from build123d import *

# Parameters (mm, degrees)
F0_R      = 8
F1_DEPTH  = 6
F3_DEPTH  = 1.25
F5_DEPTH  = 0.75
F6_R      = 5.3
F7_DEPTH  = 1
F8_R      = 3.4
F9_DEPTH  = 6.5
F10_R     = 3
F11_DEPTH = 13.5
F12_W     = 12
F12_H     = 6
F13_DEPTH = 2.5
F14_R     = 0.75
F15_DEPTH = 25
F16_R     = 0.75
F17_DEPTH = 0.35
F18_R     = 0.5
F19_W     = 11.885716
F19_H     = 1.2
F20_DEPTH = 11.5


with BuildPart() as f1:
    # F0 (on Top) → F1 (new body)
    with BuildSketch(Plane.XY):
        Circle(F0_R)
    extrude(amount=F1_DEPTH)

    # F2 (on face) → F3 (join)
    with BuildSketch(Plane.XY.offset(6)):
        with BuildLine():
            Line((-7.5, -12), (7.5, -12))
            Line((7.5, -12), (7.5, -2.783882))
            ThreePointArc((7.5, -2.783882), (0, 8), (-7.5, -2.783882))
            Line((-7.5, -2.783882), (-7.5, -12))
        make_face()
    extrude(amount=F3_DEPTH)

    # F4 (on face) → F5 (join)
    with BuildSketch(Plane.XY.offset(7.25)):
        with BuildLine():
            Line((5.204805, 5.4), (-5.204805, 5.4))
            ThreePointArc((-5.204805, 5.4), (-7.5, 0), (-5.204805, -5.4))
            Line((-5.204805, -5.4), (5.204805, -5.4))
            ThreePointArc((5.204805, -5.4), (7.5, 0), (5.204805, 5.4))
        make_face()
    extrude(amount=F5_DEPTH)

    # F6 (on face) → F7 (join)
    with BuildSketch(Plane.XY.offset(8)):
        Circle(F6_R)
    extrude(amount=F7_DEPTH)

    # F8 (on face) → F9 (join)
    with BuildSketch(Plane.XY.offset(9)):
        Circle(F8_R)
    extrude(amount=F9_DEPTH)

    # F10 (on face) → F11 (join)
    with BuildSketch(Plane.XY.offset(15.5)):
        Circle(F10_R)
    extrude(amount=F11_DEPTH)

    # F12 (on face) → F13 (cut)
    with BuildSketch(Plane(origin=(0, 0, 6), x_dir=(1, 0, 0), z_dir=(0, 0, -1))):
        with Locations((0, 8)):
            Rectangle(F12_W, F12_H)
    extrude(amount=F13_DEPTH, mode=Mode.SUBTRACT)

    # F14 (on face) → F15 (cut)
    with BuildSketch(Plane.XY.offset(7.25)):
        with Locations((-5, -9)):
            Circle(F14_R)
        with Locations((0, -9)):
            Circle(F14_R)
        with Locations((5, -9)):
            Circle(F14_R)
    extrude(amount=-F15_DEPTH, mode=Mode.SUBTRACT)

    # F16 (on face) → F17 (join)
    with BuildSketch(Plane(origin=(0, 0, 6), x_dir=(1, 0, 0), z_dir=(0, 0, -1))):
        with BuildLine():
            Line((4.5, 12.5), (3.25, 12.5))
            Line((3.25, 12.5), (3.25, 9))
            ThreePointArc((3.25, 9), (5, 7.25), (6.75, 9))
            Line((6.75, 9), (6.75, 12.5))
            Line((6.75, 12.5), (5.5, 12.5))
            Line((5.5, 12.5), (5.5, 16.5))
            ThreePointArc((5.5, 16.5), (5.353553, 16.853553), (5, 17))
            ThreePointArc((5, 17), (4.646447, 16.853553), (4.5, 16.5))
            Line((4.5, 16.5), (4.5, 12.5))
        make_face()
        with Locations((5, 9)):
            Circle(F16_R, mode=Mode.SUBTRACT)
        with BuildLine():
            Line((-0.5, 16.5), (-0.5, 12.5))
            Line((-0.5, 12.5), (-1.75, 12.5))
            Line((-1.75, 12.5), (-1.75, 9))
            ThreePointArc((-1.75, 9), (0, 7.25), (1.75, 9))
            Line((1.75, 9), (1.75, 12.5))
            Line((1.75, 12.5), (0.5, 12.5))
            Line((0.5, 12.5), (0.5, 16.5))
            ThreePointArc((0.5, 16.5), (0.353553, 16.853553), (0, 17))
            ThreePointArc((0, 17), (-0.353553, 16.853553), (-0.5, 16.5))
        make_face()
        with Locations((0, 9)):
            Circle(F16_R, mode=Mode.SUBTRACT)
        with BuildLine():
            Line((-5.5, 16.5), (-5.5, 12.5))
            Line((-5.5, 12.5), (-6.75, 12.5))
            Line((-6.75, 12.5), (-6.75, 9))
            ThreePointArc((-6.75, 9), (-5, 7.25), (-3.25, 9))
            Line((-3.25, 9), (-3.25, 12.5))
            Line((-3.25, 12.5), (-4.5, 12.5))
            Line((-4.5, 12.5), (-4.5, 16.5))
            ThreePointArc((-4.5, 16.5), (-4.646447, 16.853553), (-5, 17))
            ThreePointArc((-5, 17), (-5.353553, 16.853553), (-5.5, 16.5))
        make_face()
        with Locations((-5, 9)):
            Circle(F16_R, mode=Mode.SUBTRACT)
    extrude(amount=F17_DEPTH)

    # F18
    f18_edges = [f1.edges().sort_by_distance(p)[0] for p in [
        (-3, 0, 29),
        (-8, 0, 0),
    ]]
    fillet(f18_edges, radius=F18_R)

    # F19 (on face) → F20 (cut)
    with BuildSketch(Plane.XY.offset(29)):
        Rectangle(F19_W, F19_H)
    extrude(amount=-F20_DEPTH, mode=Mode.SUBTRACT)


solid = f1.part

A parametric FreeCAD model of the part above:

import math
import FreeCAD as App
import Part
import Sketcher
from FreeCAD import Vector


def edges_at(feature, points):
    """Names of the edges that pass closest to the given points."""
    edges = feature.Shape.Edges
    near = lambda p: min(range(len(edges)), key=lambda i: edges[i].distToShape(Part.Vertex(*p))[0])
    return sorted({f"Edge{near(p) + 1}" for p in points})


def add_polygon(sketch, points):
    """Adds a closed chain of lines whose ends are joined by coincident constraints."""
    first, n = sketch.GeometryCount, len(points)
    for a, b in zip(points, points[1:] + points[:1]):
        sketch.addGeometry(Part.LineSegment(App.Vector(*a, 0), App.Vector(*b, 0)), False)
    for i in range(n):
        sketch.addConstraint(Sketcher.Constraint("Coincident", first + i, 2, first + (i + 1) % n, 1))

doc = App.newDocument("Part")
body = doc.addObject("PartDesign::Body", "Body")

sketch1 = doc.addObject("Sketcher::SketchObject", "Sketch")
body.addObject(sketch1)
sketch1.AttachmentSupport = (doc.XY_Plane, [""])
sketch1.MapMode = "FlatFace"
sketch1.addGeometry(Part.Circle(Vector(0, 0, 0), Vector(0, 0, 1), 8), False)
sketch1.addConstraint(Sketcher.Constraint("Coincident", 0, 3, -1, 1))
sketch1.addConstraint(Sketcher.Constraint("Diameter", 0, 16.0))
pad1 = doc.addObject("PartDesign::Pad", "Pad")
body.addObject(pad1)
pad1.Profile = sketch1
pad1.Length = 6

sketch2 = doc.addObject("Sketcher::SketchObject", "Sketch001")
body.addObject(sketch2)
sketch2.AttachmentSupport = (doc.XY_Plane, [""])
sketch2.MapMode = "FlatFace"
sketch2.AttachmentOffset = App.Placement(Vector(0, 0, 6), App.Rotation())
sketch2.addGeometry(Part.LineSegment(Vector(-8, -12, 0), Vector(8, -12, 0)), False)
sketch2.addGeometry(Part.LineSegment(Vector(8, -12, 0), Vector(8, -3, 0)), False)
sketch2.addGeometry(Part.ArcOfCircle(Part.Circle(Vector(0, 0, 0), Vector(0, 0, 1), 8), math.radians(-20), math.radians(200)), False)
sketch2.addGeometry(Part.LineSegment(Vector(-8, -3, 0), Vector(-8, -12, 0)), False)
sketch2.addConstraint(Sketcher.Constraint("Coincident", 0, 2, 1, 1))
sketch2.addConstraint(Sketcher.Constraint("Coincident", 1, 2, 2, 1))
sketch2.addConstraint(Sketcher.Constraint("Coincident", 2, 2, 3, 1))
sketch2.addConstraint(Sketcher.Constraint("Coincident", 3, 2, 0, 1))
sketch2.addConstraint(Sketcher.Constraint("Horizontal", 0))
sketch2.addConstraint(Sketcher.Constraint("Vertical", 1))
sketch2.addConstraint(Sketcher.Constraint("Vertical", 3))
sketch2.addConstraint(Sketcher.Constraint("Coincident", 2, 3, -1, 1))
sketch2.addConstraint(Sketcher.Constraint("Horizontal", 1, 2, 2, 2))
sketch2.addConstraint(Sketcher.Constraint("Radius", 2, 8.0))
sketch2.addConstraint(Sketcher.Constraint("DistanceX", 0, 1, 0, 2, 15.0))
sketch2.addConstraint(Sketcher.Constraint("DistanceY", 0, 2, -1, 1, 12.0))
pad2 = doc.addObject("PartDesign::Pad", "Pad001")
body.addObject(pad2)
pad2.Profile = sketch2
pad2.Length = 1.25

sketch3 = doc.addObject("Sketcher::SketchObject", "Sketch002")
body.addObject(sketch3)
sketch3.AttachmentSupport = (doc.XY_Plane, [""])
sketch3.MapMode = "FlatFace"
sketch3.AttachmentOffset = App.Placement(Vector(0, 0, 7.25), App.Rotation())
sketch3.addGeometry(Part.LineSegment(Vector(5, 5, 0), Vector(-5, 5, 0)), False)
sketch3.addGeometry(Part.ArcOfCircle(Part.Circle(Vector(0, 0, 0), Vector(0, 0, 1), 7), math.radians(134), math.radians(226)), False)
sketch3.addGeometry(Part.LineSegment(Vector(-5, -5, 0), Vector(5, -5, 0)), False)
sketch3.addGeometry(Part.ArcOfCircle(Part.Circle(Vector(0, 0, 0), Vector(0, 0, 1), 7), math.radians(-46), math.radians(46)), False)
sketch3.addConstraint(Sketcher.Constraint("Coincident", 0, 2, 1, 1))
sketch3.addConstraint(Sketcher.Constraint("Coincident", 1, 2, 2, 1))
sketch3.addConstraint(Sketcher.Constraint("Coincident", 2, 2, 3, 1))
sketch3.addConstraint(Sketcher.Constraint("Coincident", 3, 2, 0, 1))
sketch3.addConstraint(Sketcher.Constraint("Horizontal", 0))
sketch3.addConstraint(Sketcher.Constraint("Horizontal", 2))
sketch3.addConstraint(Sketcher.Constraint("Coincident", 1, 3, -1, 1))
sketch3.addConstraint(Sketcher.Constraint("Coincident", 3, 3, -1, 1))
sketch3.addConstraint(Sketcher.Constraint("Equal", 1, 3))
sketch3.addConstraint(Sketcher.Constraint("Vertical", 0, 2, 1, 2))
sketch3.addConstraint(Sketcher.Constraint("Radius", 1, 7.499999))
sketch3.addConstraint(Sketcher.Constraint("DistanceY", -1, 1, 0, 2, 5.4))
pad3 = doc.addObject("PartDesign::Pad", "Pad002")
body.addObject(pad3)
pad3.Profile = sketch3
pad3.Length = 0.75

sketch4 = doc.addObject("Sketcher::SketchObject", "Sketch003")
body.addObject(sketch4)
sketch4.AttachmentSupport = (doc.XY_Plane, [""])
sketch4.MapMode = "FlatFace"
sketch4.AttachmentOffset = App.Placement(Vector(0, 0, 8), App.Rotation())
sketch4.addGeometry(Part.Circle(Vector(0, 0, 0), Vector(0, 0, 1), 5), False)
sketch4.addConstraint(Sketcher.Constraint("Coincident", 0, 3, -1, 1))
sketch4.addConstraint(Sketcher.Constraint("Diameter", 0, 10.6))
pad4 = doc.addObject("PartDesign::Pad", "Pad003")
body.addObject(pad4)
pad4.Profile = sketch4
pad4.Length = 1

sketch5 = doc.addObject("Sketcher::SketchObject", "Sketch004")
body.addObject(sketch5)
sketch5.AttachmentSupport = (doc.XY_Plane, [""])
sketch5.MapMode = "FlatFace"
sketch5.AttachmentOffset = App.Placement(Vector(0, 0, 9), App.Rotation())
sketch5.addGeometry(Part.Circle(Vector(0, 0, 0), Vector(0, 0, 1), 3.4), False)
sketch5.addConstraint(Sketcher.Constraint("Coincident", 0, 3, -1, 1))
sketch5.addConstraint(Sketcher.Constraint("Diameter", 0, 6.8))
pad5 = doc.addObject("PartDesign::Pad", "Pad004")
body.addObject(pad5)
pad5.Profile = sketch5
pad5.Length = 6.5

sketch6 = doc.addObject("Sketcher::SketchObject", "Sketch005")
body.addObject(sketch6)
sketch6.AttachmentSupport = (doc.XY_Plane, [""])
sketch6.MapMode = "FlatFace"
sketch6.AttachmentOffset = App.Placement(Vector(0, 0, 15.5), App.Rotation())
sketch6.addGeometry(Part.Circle(Vector(0, 0, 0), Vector(0, 0, 1), 3), False)
sketch6.addConstraint(Sketcher.Constraint("Coincident", 0, 3, -1, 1))
sketch6.addConstraint(Sketcher.Constraint("Diameter", 0, 6.0))
pad6 = doc.addObject("PartDesign::Pad", "Pad005")
body.addObject(pad6)
pad6.Profile = sketch6
pad6.Length = 13.5

sketch7 = doc.addObject("Sketcher::SketchObject", "Sketch006")
body.addObject(sketch7)
sketch7.AttachmentSupport = (doc.XY_Plane, [""])
sketch7.MapMode = "FlatFace"
sketch7.AttachmentOffset = App.Placement(Vector(0, 0, 6), App.Rotation())
add_polygon(sketch7, [(-6, -11), (-6, -5), (6, -5), (6, -11)])
sketch7.addConstraint(Sketcher.Constraint("Vertical", 0))
sketch7.addConstraint(Sketcher.Constraint("Horizontal", 1))
sketch7.addConstraint(Sketcher.Constraint("Vertical", 2))
sketch7.addConstraint(Sketcher.Constraint("Horizontal", 3))
sketch7.addConstraint(Sketcher.Constraint("DistanceX", 1, 1, 1, 2, 12.0))
sketch7.addConstraint(Sketcher.Constraint("DistanceY", 0, 1, 0, 2, 6.0))
sketch7.addConstraint(Sketcher.Constraint("DistanceX", 0, 2, -1, 1, 6.0))
sketch7.addConstraint(Sketcher.Constraint("DistanceY", 0, 2, -1, 1, 5.0))
pocket1 = doc.addObject("PartDesign::Pocket", "Pocket")
body.addObject(pocket1)
pocket1.Profile = sketch7
pocket1.Length = 2.5

sketch8 = doc.addObject("Sketcher::SketchObject", "Sketch007")
body.addObject(sketch8)
sketch8.AttachmentSupport = (doc.XY_Plane, [""])
sketch8.MapMode = "FlatFace"
sketch8.AttachmentOffset = App.Placement(Vector(0, 0, 7.25), App.Rotation())
sketch8.addGeometry(Part.Circle(Vector(-5, -9, 0), Vector(0, 0, 1), 0.8), False)
sketch8.addGeometry(Part.Circle(Vector(0, -9, 0), Vector(0, 0, 1), 0.8), False)
sketch8.addGeometry(Part.Circle(Vector(5, -9, 0), Vector(0, 0, 1), 0.8), False)
sketch8.addConstraint(Sketcher.Constraint("Equal", 0, 1))
sketch8.addConstraint(Sketcher.Constraint("Equal", 1, 2))
sketch8.addConstraint(Sketcher.Constraint("Symmetric", 0, 3, 2, 3, -2))
sketch8.addConstraint(Sketcher.Constraint("PointOnObject", 1, 3, -2))
sketch8.addConstraint(Sketcher.Constraint("Horizontal", 0, 3, 1, 3))
sketch8.addConstraint(Sketcher.Constraint("Diameter", 0, 1.5))
sketch8.addConstraint(Sketcher.Constraint("DistanceX", 0, 3, -1, 1, 5.0))
sketch8.addConstraint(Sketcher.Constraint("DistanceY", 0, 3, -1, 1, 9.0))
pocket2 = doc.addObject("PartDesign::Pocket", "Pocket001")
body.addObject(pocket2)
pocket2.Profile = sketch8
pocket2.Length = 25

sketch9 = doc.addObject("Sketcher::SketchObject", "Sketch008")
body.addObject(sketch9)
sketch9.AttachmentSupport = (doc.XY_Plane, [""])
sketch9.MapMode = "FlatFace"
sketch9.AttachmentOffset = App.Placement(Vector(0, 0, 6), App.Rotation())
sketch9.addGeometry(Part.LineSegment(Vector(4.5, -12.5, 0), Vector(3.2, -12.5, 0)), False)
sketch9.addGeometry(Part.LineSegment(Vector(3.2, -12.5, 0), Vector(3.2, -9, 0)), False)
sketch9.addGeometry(Part.ArcOfCircle(Part.Circle(Vector(5, -9, 0), Vector(0, 0, 1), 1.8), math.radians(0), math.radians(180)), False)
sketch9.addGeometry(Part.LineSegment(Vector(6.8, -9, 0), Vector(6.8, -12.5, 0)), False)
sketch9.addGeometry(Part.LineSegment(Vector(6.8, -12.5, 0), Vector(5.5, -12.5, 0)), False)
sketch9.addGeometry(Part.LineSegment(Vector(5.5, -12.5, 0), Vector(5.5, -16.5, 0)), False)
sketch9.addGeometry(Part.ArcOfCircle(Part.Circle(Vector(5, -16.5, 0), Vector(0, 0, 1), 0.5), math.radians(-90), math.radians(0)), False)
sketch9.addGeometry(Part.ArcOfCircle(Part.Circle(Vector(5, -16.5, 0), Vector(0, 0, 1), 0.5), math.radians(-180), math.radians(-90)), False)
sketch9.addGeometry(Part.LineSegment(Vector(4.5, -16.5, 0), Vector(4.5, -12.5, 0)), False)
sketch9.addGeometry(Part.Circle(Vector(5, -9, 0), Vector(0, 0, 1), 0.8), False)
sketch9.addGeometry(Part.LineSegment(Vector(-0.5, -16.5, 0), Vector(-0.5, -12.5, 0)), False)
sketch9.addGeometry(Part.LineSegment(Vector(-0.5, -12.5, 0), Vector(-1.8, -12.5, 0)), False)
sketch9.addGeometry(Part.LineSegment(Vector(-1.8, -12.5, 0), Vector(-1.8, -9, 0)), False)
sketch9.addGeometry(Part.ArcOfCircle(Part.Circle(Vector(0, -9, 0), Vector(0, 0, 1), 1.8), math.radians(0), math.radians(180)), False)
sketch9.addGeometry(Part.LineSegment(Vector(1.8, -9, 0), Vector(1.8, -12.5, 0)), False)
sketch9.addGeometry(Part.LineSegment(Vector(1.8, -12.5, 0), Vector(0.5, -12.5, 0)), False)
sketch9.addGeometry(Part.LineSegment(Vector(0.5, -12.5, 0), Vector(0.5, -16.5, 0)), False)
sketch9.addGeometry(Part.ArcOfCircle(Part.Circle(Vector(0, -16.5, 0), Vector(0, 0, 1), 0.5), math.radians(-90), math.radians(0)), False)
sketch9.addGeometry(Part.ArcOfCircle(Part.Circle(Vector(0, -16.5, 0), Vector(0, 0, 1), 0.5), math.radians(-180), math.radians(-90)), False)
sketch9.addGeometry(Part.Circle(Vector(0, -9, 0), Vector(0, 0, 1), 0.8), False)
sketch9.addGeometry(Part.LineSegment(Vector(-5.5, -16.5, 0), Vector(-5.5, -12.5, 0)), False)
sketch9.addGeometry(Part.LineSegment(Vector(-5.5, -12.5, 0), Vector(-6.8, -12.5, 0)), False)
sketch9.addGeometry(Part.LineSegment(Vector(-6.8, -12.5, 0), Vector(-6.8, -9, 0)), False)
sketch9.addGeometry(Part.ArcOfCircle(Part.Circle(Vector(-5, -9, 0), Vector(0, 0, 1), 1.8), math.radians(0), math.radians(180)), False)
sketch9.addGeometry(Part.LineSegment(Vector(-3.2, -9, 0), Vector(-3.2, -12.5, 0)), False)
sketch9.addGeometry(Part.LineSegment(Vector(-3.2, -12.5, 0), Vector(-4.5, -12.5, 0)), False)
sketch9.addGeometry(Part.LineSegment(Vector(-4.5, -12.5, 0), Vector(-4.5, -16.5, 0)), False)
sketch9.addGeometry(Part.ArcOfCircle(Part.Circle(Vector(-5, -16.5, 0), Vector(0, 0, 1), 0.5), math.radians(-90), math.radians(0)), False)
sketch9.addGeometry(Part.ArcOfCircle(Part.Circle(Vector(-5, -16.5, 0), Vector(0, 0, 1), 0.5), math.radians(-180), math.radians(-90)), False)
sketch9.addGeometry(Part.Circle(Vector(-5, -9, 0), Vector(0, 0, 1), 0.8), False)
sketch9.addConstraint(Sketcher.Constraint("Coincident", 0, 2, 1, 1))
sketch9.addConstraint(Sketcher.Constraint("Tangent", 1, 2, 2, 2))
sketch9.addConstraint(Sketcher.Constraint("Tangent", 2, 1, 3, 1))
sketch9.addConstraint(Sketcher.Constraint("Coincident", 3, 2, 4, 1))
sketch9.addConstraint(Sketcher.Constraint("Coincident", 4, 2, 5, 1))
sketch9.addConstraint(Sketcher.Constraint("Coincident", 5, 2, 6, 2))
sketch9.addConstraint(Sketcher.Constraint("Coincident", 6, 1, 7, 2))
sketch9.addConstraint(Sketcher.Constraint("Coincident", 7, 1, 8, 1))
sketch9.addConstraint(Sketcher.Constraint("Coincident", 8, 2, 0, 1))
sketch9.addConstraint(Sketcher.Constraint("Coincident", 10, 2, 11, 1))
sketch9.addConstraint(Sketcher.Constraint("Coincident", 11, 2, 12, 1))
sketch9.addConstraint(Sketcher.Constraint("Tangent", 12, 2, 13, 2))
sketch9.addConstraint(Sketcher.Constraint("Tangent", 13, 1, 14, 1))
sketch9.addConstraint(Sketcher.Constraint("Coincident", 14, 2, 15, 1))
sketch9.addConstraint(Sketcher.Constraint("Coincident", 15, 2, 16, 1))
sketch9.addConstraint(Sketcher.Constraint("Coincident", 16, 2, 17, 2))
sketch9.addConstraint(Sketcher.Constraint("Coincident", 17, 1, 18, 2))
sketch9.addConstraint(Sketcher.Constraint("Coincident", 18, 1, 10, 1))
sketch9.addConstraint(Sketcher.Constraint("Coincident", 20, 2, 21, 1))
sketch9.addConstraint(Sketcher.Constraint("Coincident", 21, 2, 22, 1))
sketch9.addConstraint(Sketcher.Constraint("Tangent", 22, 2, 23, 2))
sketch9.addConstraint(Sketcher.Constraint("Tangent", 23, 1, 24, 1))
sketch9.addConstraint(Sketcher.Constraint("Coincident", 24, 2, 25, 1))
sketch9.addConstraint(Sketcher.Constraint("Coincident", 25, 2, 26, 1))
sketch9.addConstraint(Sketcher.Constraint("Coincident", 26, 2, 27, 2))
sketch9.addConstraint(Sketcher.Constraint("Coincident", 27, 1, 28, 2))
sketch9.addConstraint(Sketcher.Constraint("Coincident", 28, 1, 20, 1))
sketch9.addConstraint(Sketcher.Constraint("Horizontal", 0))
sketch9.addConstraint(Sketcher.Constraint("Vertical", 1))
sketch9.addConstraint(Sketcher.Constraint("Vertical", 3))
sketch9.addConstraint(Sketcher.Constraint("Horizontal", 4))
sketch9.addConstraint(Sketcher.Constraint("Vertical", 5))
sketch9.addConstraint(Sketcher.Constraint("Vertical", 8))
sketch9.addConstraint(Sketcher.Constraint("Vertical", 10))
sketch9.addConstraint(Sketcher.Constraint("Horizontal", 11))
sketch9.addConstraint(Sketcher.Constraint("Vertical", 12))
sketch9.addConstraint(Sketcher.Constraint("Vertical", 14))
sketch9.addConstraint(Sketcher.Constraint("Horizontal", 15))
sketch9.addConstraint(Sketcher.Constraint("Vertical", 16))
sketch9.addConstraint(Sketcher.Constraint("Vertical", 20))
sketch9.addConstraint(Sketcher.Constraint("Horizontal", 21))
sketch9.addConstraint(Sketcher.Constraint("Vertical", 22))
sketch9.addConstraint(Sketcher.Constraint("Vertical", 24))
sketch9.addConstraint(Sketcher.Constraint("Horizontal", 25))
sketch9.addConstraint(Sketcher.Constraint("Vertical", 26))
sketch9.addConstraint(Sketcher.Constraint("Coincident", 7, 3, 6, 3))
sketch9.addConstraint(Sketcher.Constraint("Coincident", 9, 3, 2, 3))
sketch9.addConstraint(Sketcher.Constraint("Coincident", 18, 3, 17, 3))
sketch9.addConstraint(Sketcher.Constraint("Coincident", 19, 3, 13, 3))
sketch9.addConstraint(Sketcher.Constraint("Coincident", 28, 3, 27, 3))
sketch9.addConstraint(Sketcher.Constraint("Coincident", 29, 3, 23, 3))
sketch9.addConstraint(Sketcher.Constraint("Equal", 2, 13))
sketch9.addConstraint(Sketcher.Constraint("Equal", 7, 17))
sketch9.addConstraint(Sketcher.Constraint("Equal", 9, 19))
sketch9.addConstraint(Sketcher.Constraint("Equal", 13, 23))
sketch9.addConstraint(Sketcher.Constraint("Equal", 18, 27))
sketch9.addConstraint(Sketcher.Constraint("Equal", 19, 29))
sketch9.addConstraint(Sketcher.Constraint("Symmetric", 2, 3, 23, 3, -2))
sketch9.addConstraint(Sketcher.Constraint("Symmetric", 6, 3, 27, 3, -2))
sketch9.addConstraint(Sketcher.Constraint("Symmetric", 11, 2, 14, 2, -2))
sketch9.addConstraint(Sketcher.Constraint("Symmetric", 16, 2, 18, 1, -2))
sketch9.addConstraint(Sketcher.Constraint("PointOnObject", 17, 1, -2))
sketch9.addConstraint(Sketcher.Constraint("Horizontal", 9, 3, 13, 3))
sketch9.addConstraint(Sketcher.Constraint("Horizontal", 7, 3, 17, 3))
sketch9.addConstraint(Sketcher.Constraint("Horizontal", 0, 2, 3, 2))
sketch9.addConstraint(Sketcher.Constraint("Horizontal", 28, 3, 5, 2))
sketch9.addConstraint(Sketcher.Constraint("Horizontal", 5, 2, 7, 1))
sketch9.addConstraint(Sketcher.Constraint("Horizontal", 8, 2, 10, 2))
sketch9.addConstraint(Sketcher.Constraint("Horizontal", 7, 1, 16, 2))
sketch9.addConstraint(Sketcher.Constraint("Horizontal", 15, 2, 20, 2))
sketch9.addConstraint(Sketcher.Constraint("Horizontal", 21, 2, 24, 2))
sketch9.addConstraint(Sketcher.Constraint("Horizontal", 18, 1, 26, 2))
sketch9.addConstraint(Sketcher.Constraint("Horizontal", 26, 2, 28, 1))
sketch9.addConstraint(Sketcher.Constraint("Vertical", 2, 3, 6, 3))
sketch9.addConstraint(Sketcher.Constraint("Vertical", 9, 3, 6, 1))
sketch9.addConstraint(Sketcher.Constraint("Vertical", 29, 3, 27, 1))
sketch9.addConstraint(Sketcher.Constraint("Diameter", 9, 1.5))
sketch9.addConstraint(Sketcher.Constraint("Radius", 6, 0.500001))
sketch9.addConstraint(Sketcher.Constraint("DistanceY", 5, 2, 5, 1, 4.0))
sketch9.addConstraint(Sketcher.Constraint("Radius", 2, 1.75))
sketch9.addConstraint(Sketcher.Constraint("DistanceY", 1, 1, 1, 2, 3.5))
sketch9.addConstraint(Sketcher.Constraint("DistanceX", -1, 1, 2, 3, 5.0))
sketch9.addConstraint(Sketcher.Constraint("DistanceY", 2, 3, -1, 1, 9.0))
pad7 = doc.addObject("PartDesign::Pad", "Pad006")
body.addObject(pad7)
pad7.Profile = sketch9
pad7.Length = 0.35
pad7.Reversed = True
doc.recompute()

fillet = doc.addObject("PartDesign::Fillet", "Fillet")
body.addObject(fillet)
fillet.Base = (pad7, edges_at(pad7, [(-3, 0, 29), (-8, 0, 0)]))
fillet.Radius = 0.5

sketch10 = doc.addObject("Sketcher::SketchObject", "Sketch009")
body.addObject(sketch10)
sketch10.AttachmentSupport = (doc.XY_Plane, [""])
sketch10.MapMode = "FlatFace"
sketch10.AttachmentOffset = App.Placement(Vector(0, 0, 29), App.Rotation())
add_polygon(sketch10, [(-5.9, 0.6), (-5.9, -0.6), (5.9, -0.6), (5.9, 0.6)])
sketch10.addConstraint(Sketcher.Constraint("Vertical", 0))
sketch10.addConstraint(Sketcher.Constraint("Horizontal", 1))
sketch10.addConstraint(Sketcher.Constraint("Vertical", 2))
sketch10.addConstraint(Sketcher.Constraint("Horizontal", 3))
sketch10.addConstraint(Sketcher.Constraint("Symmetric", 0, 2, 2, 2, -1, 1))
sketch10.addConstraint(Sketcher.Constraint("DistanceY", 0, 2, 0, 1, 1.2))
sketch10.addConstraint(Sketcher.Constraint("DistanceX", 1, 1, 1, 2, 11.885716))
pocket3 = doc.addObject("PartDesign::Pocket", "Pocket002")
body.addObject(pocket3)
pocket3.Profile = sketch10
pocket3.Length = 11.5

doc.recompute()
